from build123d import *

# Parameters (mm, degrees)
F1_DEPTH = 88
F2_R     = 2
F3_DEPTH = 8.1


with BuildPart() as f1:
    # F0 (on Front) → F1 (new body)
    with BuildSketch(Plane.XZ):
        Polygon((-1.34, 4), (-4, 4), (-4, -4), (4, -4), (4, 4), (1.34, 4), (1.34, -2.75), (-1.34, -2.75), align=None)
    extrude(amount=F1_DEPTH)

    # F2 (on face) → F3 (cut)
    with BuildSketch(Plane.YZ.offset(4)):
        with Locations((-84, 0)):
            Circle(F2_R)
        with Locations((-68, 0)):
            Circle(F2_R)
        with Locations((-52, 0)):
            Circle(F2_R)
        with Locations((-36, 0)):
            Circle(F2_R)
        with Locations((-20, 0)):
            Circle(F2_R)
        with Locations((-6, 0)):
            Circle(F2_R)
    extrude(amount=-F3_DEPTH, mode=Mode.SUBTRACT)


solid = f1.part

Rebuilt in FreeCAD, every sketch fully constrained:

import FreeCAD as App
import Part
import Sketcher
from FreeCAD import Vector
Q = App.Units.Quantity


def add_polygon(sketch, points):
    """Adds a closed chain of lines whose ends are joined by coincident constraints."""
    first, n = sketch.GeometryCount, len(points)
    for a, b in zip(points, points[1:] + points[:1]):
        sketch.addGeometry(Part.LineSegment(App.Vector(*a, 0), App.Vector(*b, 0)), False)
    for i in range(n):
        sketch.addConstraint(Sketcher.Constraint("Coincident", first + i, 2, first + (i + 1) % n, 1))

doc = App.newDocument("Part")
body = doc.addObject("PartDesign::Body", "Body")

sketch1 = body.newObject("Sketcher::SketchObject", "Sketch")
sketch1.AttachmentSupport = (doc.getObject("XZ_Plane"), [""])
sketch1.MapMode = "FlatFace"
add_polygon(sketch1, [(-1.3, 4), (-4, 4), (-4, -4), (4, -4), (4, 4), (1.3, 4), (1.3, -2.8), (-1.3, -2.8)])
sketch1.addConstraint([
    Sketcher.Constraint("Horizontal", 0),
    Sketcher.Constraint("Vertical", 1),
    Sketcher.Constraint("Horizontal", 2),
    Sketcher.Constraint("Vertical", 3),
    Sketcher.Constraint("Horizontal", 4),
    Sketcher.Constraint("Vertical", 5),
    Sketcher.Constraint("Horizontal", 6),
    Sketcher.Constraint("Vertical", 7),
    Sketcher.Constraint("Symmetric", 0, 2, 2, 2, -1, 1),
    Sketcher.Constraint("Symmetric", 4, 2, 7, 2, -2),
    Sketcher.Constraint("Equal", 2, 1),
    Sketcher.Constraint("DistanceX", 2, 1, 2, 2, Q("8 mm")),
    Sketcher.Constraint("DistanceX", 0, 2, 0, 1, Q("2.66 mm")),
    Sketcher.Constraint("DistanceY", 5, 2, 5, 1, Q("6.75 mm")),
])
pad1 = body.newObject("PartDesign::Pad", "Pad")
pad1.Profile = sketch1
pad1.Length = 88

sketch2 = body.newObject("Sketcher::SketchObject", "Sketch001")
sketch2.AttachmentSupport = (doc.getObject("YZ_Plane"), [""])
sketch2.MapMode = "FlatFace"
sketch2.AttachmentOffset = App.Placement(Vector(0, 0, 4), App.Rotation())
sketch2.addGeometry([
    Part.Circle(Vector(-84, 0, 0), Vector(0, 0, 1), 2),
    Part.Circle(Vector(-68, 0, 0), Vector(0, 0, 1), 2),
    Part.Circle(Vector(-52, 0, 0), Vector(0, 0, 1), 2),
    Part.Circle(Vector(-36, 0, 0), Vector(0, 0, 1), 2),
    Part.Circle(Vector(-20, 0, 0), Vector(0, 0, 1), 2),
    Part.Circle(Vector(-6, 0, 0), Vector(0, 0, 1), 2),
], False)
sketch2.addConstraint([
    Sketcher.Constraint("Equal", 0, 1),
    Sketcher.Constraint("Equal", 1, 2),
    Sketcher.Constraint("Equal", 2, 3),
    Sketcher.Constraint("Equal", 3, 4),
    Sketcher.Constraint("Equal", 4, 5),
    Sketcher.Constraint("PointOnObject", 0, 3, -1),
    Sketcher.Constraint("PointOnObject", 1, 3, -1),
    Sketcher.Constraint("PointOnObject", 2, 3, -1),
    Sketcher.Constraint("PointOnObject", 3, 3, -1),
    Sketcher.Constraint("PointOnObject", 4, 3, -1),
    Sketcher.Constraint("PointOnObject", 5, 3, -1),
    Sketcher.Constraint("Diameter", 0, Q("4 mm")),
    Sketcher.Constraint("DistanceX", 0, 3, -1, 1, Q("84 mm")),
    Sketcher.Constraint("DistanceX", 1, 3, -1, 1, Q("68 mm")),
    Sketcher.Constraint("DistanceX", 2, 3, -1, 1, Q("52 mm")),
    Sketcher.Constraint("DistanceX", 3, 3, -1, 1, Q("36 mm")),
    Sketcher.Constraint("DistanceX", 4, 3, -1, 1, Q("20 mm")),
    Sketcher.Constraint("DistanceX", 5, 3, -1, 1, Q("6 mm")),
])
pocket1 = body.newObject("PartDesign::Pocket", "Pocket")
pocket1.Profile = sketch2
pocket1.Length = 8.1

doc.recompute()
